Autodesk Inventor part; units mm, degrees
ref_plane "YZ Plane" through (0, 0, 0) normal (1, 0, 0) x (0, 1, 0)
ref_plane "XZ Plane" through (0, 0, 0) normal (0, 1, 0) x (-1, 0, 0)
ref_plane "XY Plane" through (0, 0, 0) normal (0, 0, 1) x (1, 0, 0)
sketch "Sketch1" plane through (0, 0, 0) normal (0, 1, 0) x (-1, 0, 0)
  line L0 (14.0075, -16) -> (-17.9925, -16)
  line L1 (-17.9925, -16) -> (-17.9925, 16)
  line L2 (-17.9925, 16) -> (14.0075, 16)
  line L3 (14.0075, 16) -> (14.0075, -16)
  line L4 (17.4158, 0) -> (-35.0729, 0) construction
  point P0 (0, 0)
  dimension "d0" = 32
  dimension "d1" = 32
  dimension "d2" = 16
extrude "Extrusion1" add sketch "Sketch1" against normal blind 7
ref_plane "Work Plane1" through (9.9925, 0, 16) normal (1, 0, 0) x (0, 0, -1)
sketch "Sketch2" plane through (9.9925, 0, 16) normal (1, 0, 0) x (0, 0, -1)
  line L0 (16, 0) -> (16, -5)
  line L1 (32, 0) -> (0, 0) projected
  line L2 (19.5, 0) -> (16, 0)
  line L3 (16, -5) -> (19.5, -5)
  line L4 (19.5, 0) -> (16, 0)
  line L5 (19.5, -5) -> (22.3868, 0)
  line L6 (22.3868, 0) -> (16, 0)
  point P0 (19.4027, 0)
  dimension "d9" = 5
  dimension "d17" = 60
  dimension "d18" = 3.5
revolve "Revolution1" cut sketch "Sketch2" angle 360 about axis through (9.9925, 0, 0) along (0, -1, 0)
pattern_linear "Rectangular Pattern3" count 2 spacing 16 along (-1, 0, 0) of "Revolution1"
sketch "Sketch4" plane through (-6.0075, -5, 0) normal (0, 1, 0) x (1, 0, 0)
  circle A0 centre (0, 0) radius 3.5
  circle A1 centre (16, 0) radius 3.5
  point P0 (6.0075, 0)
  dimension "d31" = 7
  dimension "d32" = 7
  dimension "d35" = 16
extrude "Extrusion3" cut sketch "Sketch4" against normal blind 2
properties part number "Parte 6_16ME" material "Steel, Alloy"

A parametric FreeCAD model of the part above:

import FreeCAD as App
import Part
import Sketcher
from FreeCAD import Vector
Q = App.Units.Quantity


def add_polygon(sketch, points):
    """Adds a closed chain of lines whose ends are joined by coincident constraints."""
    first, n = sketch.GeometryCount, len(points)
    for a, b in zip(points, points[1:] + points[:1]):
        sketch.addGeometry(Part.LineSegment(App.Vector(*a, 0), App.Vector(*b, 0)), False)
    for i in range(n):
        sketch.addConstraint(Sketcher.Constraint("Coincident", first + i, 2, first + (i + 1) % n, 1))

doc = App.newDocument("Part")
params = doc.addObject("Spreadsheet::Sheet", "Params")
for row, (alias, value) in enumerate([
    ("sketch1_width", "32 mm"),
    ("pad1_length", "7 mm"),
    ("sketch2_width", "5 mm"),
    ("sketch2_height", "3.5 mm"),
    ("groove_angle", "360 deg"),
    ("linearpattern_pitch", "16 mm"),
    ("sketch3_diameter", "7 mm"),
    ("pocket1_length", "2 mm"),
], start=1):
    params.set(f"A{row}", alias)
    params.set(f"B{row}", "=" + value)
    params.setAlias(f"B{row}", alias)

body = doc.addObject("PartDesign::Body", "Body")

# Sketch on XZ plane
sketch1 = body.newObject("Sketcher::SketchObject", "Sketch")
sketch1.AttachmentSupport = (doc.getObject("XZ_Plane"), [""])
sketch1.MapMode = "FlatFace"
add_polygon(sketch1, [(18, -16), (-14, -16), (-14, 16), (18, 16)])  # lines 0-3
sketch1.addConstraint([
    Sketcher.Constraint("Horizontal", 0),
    Sketcher.Constraint("Vertical", 1),
    Sketcher.Constraint("Horizontal", 2),
    Sketcher.Constraint("Vertical", 3),
    Sketcher.Constraint("Equal", 2, 1),
    Sketcher.Constraint("DistanceX", 0, 2, 0, 1, Q("32 mm")),
    Sketcher.Constraint("DistanceY", 0, 2, -1, 1, Q("16 mm")),
    Sketcher.Constraint("DistanceX", 0, 2, -1, 1, Q("14.0075 mm")),
])
sketch1.setExpression("Constraints[9]", "Params.sketch1_width")
pad1 = body.newObject("PartDesign::Pad", "Pad")
pad1.Profile = sketch1
pad1.setExpression("Length", "Params.pad1_length")

# Sketch on YZ plane
sketch2 = body.newObject("Sketcher::SketchObject", "Sketch001")
sketch2.AttachmentSupport = (doc.getObject("YZ_Plane"), [""])
sketch2.MapMode = "FlatFace"
sketch2.AttachmentOffset = App.Placement(Vector(0, 0, 9.9925), App.Rotation())
add_polygon(sketch2, [(0, -6.4), (0, 0), (-5, 0), (-5, -3.5)])  # lines 0-3
sketch2.addConstraint([
    Sketcher.Constraint("Vertical", 0),
    Sketcher.Constraint("Horizontal", 1),
    Sketcher.Constraint("Vertical", 2),
    Sketcher.Constraint("Coincident", 0, 2, -1, 1),
    Sketcher.Constraint("DistanceX", 1, 2, 1, 1, Q("5 mm")),
    Sketcher.Constraint("DistanceY", 2, 2, 2, 1, Q("3.5 mm")),
    Sketcher.Constraint("Angle", 3, Q("-30.0004 deg")),
])
sketch2.setExpression("Constraints[8]", "Params.sketch2_width")
sketch2.setExpression("Constraints[9]", "Params.sketch2_height")
groove = body.newObject("PartDesign::Groove", "Groove")
groove.Profile = sketch2
groove.ReferenceAxis = (sketch2, ["H_Axis"])
groove.setExpression("Angle", "Params.groove_angle")
doc.recompute()

linearpattern = body.newObject("PartDesign::LinearPattern", "LinearPattern")
linearpattern.Originals = [groove]
linearpattern.Direction = (doc.getObject("X_Axis"), [""])
linearpattern.Mode = "offset"
linearpattern.setExpression("Offset", "Params.linearpattern_pitch")
linearpattern.Occurrences = 2
linearpattern.Reversed = True
body.Tip = linearpattern

# Sketch on XZ plane
sketch3 = body.newObject("Sketcher::SketchObject", "Sketch002")
sketch3.AttachmentSupport = (doc.getObject("XZ_Plane"), [""])
sketch3.MapMode = "FlatFace"
sketch3.AttachmentOffset = App.Placement(Vector(0, 0, 5), App.Rotation())
sketch3.addGeometry([
    Part.Circle(Vector(-6, 0, 0), Vector(0, 0, 1), 3.5),
    Part.Circle(Vector(10, 0, 0), Vector(0, 0, 1), 3.5),
], False)
sketch3.addConstraint([
    Sketcher.Constraint("Equal", 0, 1),
    Sketcher.Constraint("PointOnObject", 0, 3, -1),
    Sketcher.Constraint("PointOnObject", 1, 3, -1),
    Sketcher.Constraint("Diameter", 0, Q("7 mm")),
    Sketcher.Constraint("DistanceX", 0, 3, 1, 3, Q("16 mm")),
    Sketcher.Constraint("DistanceX", 0, 3, -1, 1, Q("6.0075 mm")),
])
sketch3.setExpression("Constraints[3]", "Params.sketch3_diameter")
pocket1 = body.newObject("PartDesign::Pocket", "Pocket")
pocket1.Profile = sketch3
pocket1.setExpression("Length", "Params.pocket1_length")
pocket1.Reversed = True

doc.recompute()
